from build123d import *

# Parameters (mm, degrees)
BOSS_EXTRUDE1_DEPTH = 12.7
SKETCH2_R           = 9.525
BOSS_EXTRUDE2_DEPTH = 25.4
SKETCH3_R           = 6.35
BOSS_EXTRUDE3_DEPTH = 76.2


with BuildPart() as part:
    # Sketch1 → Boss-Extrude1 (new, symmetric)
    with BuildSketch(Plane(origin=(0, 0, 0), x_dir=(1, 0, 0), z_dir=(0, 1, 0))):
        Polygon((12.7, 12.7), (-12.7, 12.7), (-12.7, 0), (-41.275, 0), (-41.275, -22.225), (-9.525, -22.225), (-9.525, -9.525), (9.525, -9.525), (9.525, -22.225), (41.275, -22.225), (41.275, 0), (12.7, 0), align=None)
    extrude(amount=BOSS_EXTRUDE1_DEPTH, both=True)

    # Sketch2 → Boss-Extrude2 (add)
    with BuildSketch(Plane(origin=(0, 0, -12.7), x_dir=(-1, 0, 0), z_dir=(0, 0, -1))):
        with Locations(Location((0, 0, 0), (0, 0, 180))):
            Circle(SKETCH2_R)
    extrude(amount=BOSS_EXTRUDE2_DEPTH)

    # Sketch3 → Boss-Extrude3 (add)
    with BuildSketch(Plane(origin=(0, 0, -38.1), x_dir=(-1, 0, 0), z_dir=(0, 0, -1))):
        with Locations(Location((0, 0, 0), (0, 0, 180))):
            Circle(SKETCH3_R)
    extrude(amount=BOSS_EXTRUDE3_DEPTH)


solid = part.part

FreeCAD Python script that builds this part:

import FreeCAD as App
import Part
import Sketcher
from FreeCAD import Vector
Q = App.Units.Quantity


def add_polygon(sketch, points):
    """Adds a closed chain of lines whose ends are joined by coincident constraints."""
    first, n = sketch.GeometryCount, len(points)
    for a, b in zip(points, points[1:] + points[:1]):
        sketch.addGeometry(Part.LineSegment(App.Vector(*a, 0), App.Vector(*b, 0)), False)
    for i in range(n):
        sketch.addConstraint(Sketcher.Constraint("Coincident", first + i, 2, first + (i + 1) % n, 1))

doc = App.newDocument("Part")
body = doc.addObject("PartDesign::Body", "Body")

# Sketch on XZ plane
sketch1 = doc.addObject("Sketcher::SketchObject", "Sketch")
body.addObject(sketch1)
sketch1.AttachmentSupport = (doc.XZ_Plane, [""])
sketch1.MapMode = "FlatFace"
add_polygon(sketch1, [(13, -13), (-13, -13), (-13, 0), (-41, 0), (-41, 22), (-10, 22), (-10, 10), (10, 10), (10, 22), (41, 22), (41, 0), (13, 0)])  # lines 0-11
sketch1.addConstraint(Sketcher.Constraint("Horizontal", 0))
sketch1.addConstraint(Sketcher.Constraint("Vertical", 1))
sketch1.addConstraint(Sketcher.Constraint("Horizontal", 2))
sketch1.addConstraint(Sketcher.Constraint("Vertical", 3))
sketch1.addConstraint(Sketcher.Constraint("Horizontal", 4))
sketch1.addConstraint(Sketcher.Constraint("Vertical", 5))
sketch1.addConstraint(Sketcher.Constraint("Horizontal", 6))
sketch1.addConstraint(Sketcher.Constraint("Vertical", 7))
sketch1.addConstraint(Sketcher.Constraint("Horizontal", 8))
sketch1.addConstraint(Sketcher.Constraint("Vertical", 9))
sketch1.addConstraint(Sketcher.Constraint("Horizontal", 10))
sketch1.addConstraint(Sketcher.Constraint("Vertical", 11))
sketch1.addConstraint(Sketcher.Constraint("Symmetric", 2, 2, 9, 2, -1, 1))
sketch1.addConstraint(Sketcher.Constraint("Symmetric", 4, 2, 7, 2, -2))
sketch1.addConstraint(Sketcher.Constraint("Symmetric", 1, 2, 10, 2, -2))
sketch1.addConstraint(Sketcher.Constraint("Equal", 1, 5))
sketch1.addConstraint(Sketcher.Constraint("DistanceX", 0, 2, 0, 1, Q("1 in")))
sketch1.addConstraint(Sketcher.Constraint("DistanceY", 1, 1, 1, 2, Q("0.5 in")))
sketch1.addConstraint(Sketcher.Constraint("DistanceX", 2, 2, 6, 2, Q("2 in")))
sketch1.addConstraint(Sketcher.Constraint("DistanceX", 4, 1, 4, 2, Q("1.25 in")))
sketch1.addConstraint(Sketcher.Constraint("DistanceY", 3, 1, 3, 2, Q("0.875 in")))
pad1 = doc.addObject("PartDesign::Pad", "Pad")
body.addObject(pad1)
pad1.Profile = sketch1
pad1.Length = Q("1 in")
pad1.Midplane = True

# Sketch on XY plane
sketch2 = doc.addObject("Sketcher::SketchObject", "Sketch001")
body.addObject(sketch2)
sketch2.AttachmentSupport = (doc.XY_Plane, [""])
sketch2.MapMode = "FlatFace"
sketch2.AttachmentOffset = App.Placement(Vector(0, 0, -0.5 * 25.4), App.Rotation())
sketch2.addGeometry(Part.Circle(Vector(0, 0, 0), Vector(0, 0, 1), 10), False)
sketch2.addConstraint(Sketcher.Constraint("Coincident", 0, 3, -1, 1))
sketch2.addConstraint(Sketcher.Constraint("Diameter", 0, Q("0.75 in")))
pad2 = doc.addObject("PartDesign::Pad", "Pad001")
body.addObject(pad2)
pad2.Profile = sketch2
pad2.Length = Q("1 in")
pad2.Reversed = True

# Sketch on XY plane
sketch3 = doc.addObject("Sketcher::SketchObject", "Sketch002")
body.addObject(sketch3)
sketch3.AttachmentSupport = (doc.XY_Plane, [""])
sketch3.MapMode = "FlatFace"
sketch3.AttachmentOffset = App.Placement(Vector(0, 0, -1.5 * 25.4), App.Rotation())
sketch3.addGeometry(Part.Circle(Vector(0, 0, 0), Vector(0, 0, 1), 6), False)
sketch3.addConstraint(Sketcher.Constraint("Coincident", 0, 3, -1, 1))
sketch3.addConstraint(Sketcher.Constraint("Diameter", 0, Q("0.5 in")))
pad3 = doc.addObject("PartDesign::Pad", "Pad002")
body.addObject(pad3)
pad3.Profile = sketch3
pad3.Length = Q("3 in")
pad3.Reversed = True

doc.recompute()
